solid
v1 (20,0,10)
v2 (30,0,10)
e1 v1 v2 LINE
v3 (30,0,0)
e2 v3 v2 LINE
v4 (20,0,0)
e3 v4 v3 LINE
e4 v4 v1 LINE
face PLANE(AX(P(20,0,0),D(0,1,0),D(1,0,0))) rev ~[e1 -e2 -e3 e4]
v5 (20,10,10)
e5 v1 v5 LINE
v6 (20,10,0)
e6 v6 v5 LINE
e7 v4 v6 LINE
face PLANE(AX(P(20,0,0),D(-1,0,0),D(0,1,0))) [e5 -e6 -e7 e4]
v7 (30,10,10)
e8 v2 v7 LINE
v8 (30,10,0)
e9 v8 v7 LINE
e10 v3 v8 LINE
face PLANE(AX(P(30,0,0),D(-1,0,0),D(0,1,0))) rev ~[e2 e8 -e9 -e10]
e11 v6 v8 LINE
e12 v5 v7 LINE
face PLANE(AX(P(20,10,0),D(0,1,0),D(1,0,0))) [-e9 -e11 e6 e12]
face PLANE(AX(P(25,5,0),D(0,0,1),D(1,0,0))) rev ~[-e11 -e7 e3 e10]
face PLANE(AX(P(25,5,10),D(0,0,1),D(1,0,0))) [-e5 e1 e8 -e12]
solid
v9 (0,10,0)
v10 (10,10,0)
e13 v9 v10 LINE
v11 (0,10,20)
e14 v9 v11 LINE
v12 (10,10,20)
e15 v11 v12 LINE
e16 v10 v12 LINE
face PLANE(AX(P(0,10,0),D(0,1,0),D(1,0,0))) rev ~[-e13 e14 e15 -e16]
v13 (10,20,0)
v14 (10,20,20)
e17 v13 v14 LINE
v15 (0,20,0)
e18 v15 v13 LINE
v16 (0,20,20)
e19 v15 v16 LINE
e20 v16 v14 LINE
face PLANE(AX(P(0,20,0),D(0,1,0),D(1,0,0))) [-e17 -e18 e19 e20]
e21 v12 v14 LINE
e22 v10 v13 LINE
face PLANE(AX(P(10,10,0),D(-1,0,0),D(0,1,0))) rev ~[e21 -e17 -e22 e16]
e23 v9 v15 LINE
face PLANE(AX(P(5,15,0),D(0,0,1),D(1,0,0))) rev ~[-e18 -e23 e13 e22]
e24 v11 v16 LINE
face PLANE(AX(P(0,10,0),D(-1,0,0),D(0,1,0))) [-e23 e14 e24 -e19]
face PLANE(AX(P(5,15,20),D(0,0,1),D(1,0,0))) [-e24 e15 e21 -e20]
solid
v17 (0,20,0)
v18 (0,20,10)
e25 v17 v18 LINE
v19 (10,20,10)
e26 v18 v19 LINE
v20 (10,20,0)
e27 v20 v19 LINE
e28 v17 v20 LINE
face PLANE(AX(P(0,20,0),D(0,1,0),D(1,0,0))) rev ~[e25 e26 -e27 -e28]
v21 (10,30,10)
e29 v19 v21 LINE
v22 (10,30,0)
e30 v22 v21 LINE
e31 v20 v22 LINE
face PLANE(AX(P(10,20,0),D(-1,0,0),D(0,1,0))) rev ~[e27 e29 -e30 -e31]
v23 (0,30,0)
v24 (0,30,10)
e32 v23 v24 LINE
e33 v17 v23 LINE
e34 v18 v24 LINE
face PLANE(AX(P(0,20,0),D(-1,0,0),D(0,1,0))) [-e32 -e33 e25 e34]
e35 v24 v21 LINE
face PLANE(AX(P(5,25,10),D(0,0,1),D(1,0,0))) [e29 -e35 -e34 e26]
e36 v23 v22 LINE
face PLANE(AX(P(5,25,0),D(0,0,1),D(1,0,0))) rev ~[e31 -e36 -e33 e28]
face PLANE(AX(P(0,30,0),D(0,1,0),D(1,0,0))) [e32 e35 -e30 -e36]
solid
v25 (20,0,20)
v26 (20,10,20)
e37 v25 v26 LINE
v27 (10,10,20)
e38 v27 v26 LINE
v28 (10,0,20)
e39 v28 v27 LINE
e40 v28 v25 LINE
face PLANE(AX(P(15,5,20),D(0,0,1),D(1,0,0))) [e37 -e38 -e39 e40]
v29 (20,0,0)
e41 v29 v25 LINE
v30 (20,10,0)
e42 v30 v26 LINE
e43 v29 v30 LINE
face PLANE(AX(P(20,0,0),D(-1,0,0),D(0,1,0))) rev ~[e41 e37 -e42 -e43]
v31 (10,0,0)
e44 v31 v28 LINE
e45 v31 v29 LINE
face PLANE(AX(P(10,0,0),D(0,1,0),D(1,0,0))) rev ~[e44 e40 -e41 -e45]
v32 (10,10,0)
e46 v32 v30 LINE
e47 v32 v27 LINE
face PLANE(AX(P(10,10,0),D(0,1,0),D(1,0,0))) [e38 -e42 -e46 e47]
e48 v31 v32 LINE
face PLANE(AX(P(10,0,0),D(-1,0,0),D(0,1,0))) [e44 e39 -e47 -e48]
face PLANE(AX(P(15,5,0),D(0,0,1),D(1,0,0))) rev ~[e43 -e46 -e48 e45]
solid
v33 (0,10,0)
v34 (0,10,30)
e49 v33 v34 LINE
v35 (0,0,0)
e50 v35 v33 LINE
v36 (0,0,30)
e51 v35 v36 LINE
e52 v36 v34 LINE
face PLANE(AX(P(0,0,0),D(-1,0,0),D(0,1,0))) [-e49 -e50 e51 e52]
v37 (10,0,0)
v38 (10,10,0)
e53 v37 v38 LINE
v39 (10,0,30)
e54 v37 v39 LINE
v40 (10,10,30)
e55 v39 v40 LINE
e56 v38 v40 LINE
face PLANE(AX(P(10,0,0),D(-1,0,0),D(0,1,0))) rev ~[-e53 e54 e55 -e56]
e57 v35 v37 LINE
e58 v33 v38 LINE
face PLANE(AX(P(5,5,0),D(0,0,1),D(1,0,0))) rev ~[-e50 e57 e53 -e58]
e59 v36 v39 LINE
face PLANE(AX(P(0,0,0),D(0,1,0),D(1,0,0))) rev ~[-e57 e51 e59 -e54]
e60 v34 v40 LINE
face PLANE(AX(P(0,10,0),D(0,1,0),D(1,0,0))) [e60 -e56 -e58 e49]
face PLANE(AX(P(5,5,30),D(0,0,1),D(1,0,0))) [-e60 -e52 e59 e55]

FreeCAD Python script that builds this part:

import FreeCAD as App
import Part
import Sketcher
Q = App.Units.Quantity

doc = App.newDocument("Part")
body = doc.addObject("PartDesign::Body", "Body")

sketch1 = body.newObject("Sketcher::SketchObject", "Sketch")
sketch1.AttachmentSupport = (doc.getObject("XY_Plane"), [""])
sketch1.MapMode = "FlatFace"
sketch1.addGeometry([
    Part.LineSegment(App.Vector(0, 10, 0), App.Vector(0, 0, 0)),
    Part.LineSegment(App.Vector(0, 0, 0), App.Vector(10, 0, 0)),
    Part.LineSegment(App.Vector(10, 0, 0), App.Vector(10, 10, 0)),
    Part.LineSegment(App.Vector(10, 10, 0), App.Vector(0, 10, 0)),
], False)
sketch1.addConstraint([
    Sketcher.Constraint("Coincident", 0, 2, 1, 1),
    Sketcher.Constraint("Coincident", 1, 2, 2, 1),
    Sketcher.Constraint("Coincident", 2, 2, 3, 1),
    Sketcher.Constraint("Coincident", 3, 2, 0, 1),
    Sketcher.Constraint("Vertical", 0),
    Sketcher.Constraint("Horizontal", 1),
    Sketcher.Constraint("Vertical", 2),
    Sketcher.Constraint("Horizontal", 3),
    Sketcher.Constraint("Coincident", 0, 2, -1, 1),
    Sketcher.Constraint("Equal", 3, 0),
    Sketcher.Constraint("DistanceX", 1, 1, 1, 2, Q("10 mm")),
])
pad1 = body.newObject("PartDesign::Pad", "Pad")
pad1.Profile = sketch1
pad1.Length = 30
body2 = doc.addObject("PartDesign::Body", "Body001")

sketch2 = body2.newObject("Sketcher::SketchObject", "Sketch001")
sketch2.AttachmentSupport = (doc.getObject("XY_Plane001"), [""])
sketch2.MapMode = "FlatFace"
sketch2.addGeometry([
    Part.LineSegment(App.Vector(10, 10, 0), App.Vector(10, 0, 0)),
    Part.LineSegment(App.Vector(10, 0, 0), App.Vector(20, 0, 0)),
    Part.LineSegment(App.Vector(20, 0, 0), App.Vector(20, 10, 0)),
    Part.LineSegment(App.Vector(20, 10, 0), App.Vector(10, 10, 0)),
], False)
sketch2.addConstraint([
    Sketcher.Constraint("Coincident", 0, 2, 1, 1),
    Sketcher.Constraint("Coincident", 1, 2, 2, 1),
    Sketcher.Constraint("Coincident", 2, 2, 3, 1),
    Sketcher.Constraint("Coincident", 3, 2, 0, 1),
    Sketcher.Constraint("Vertical", 0),
    Sketcher.Constraint("Horizontal", 1),
    Sketcher.Constraint("Vertical", 2),
    Sketcher.Constraint("Horizontal", 3),
    Sketcher.Constraint("PointOnObject", 0, 2, -1),
    Sketcher.Constraint("Equal", 3, 0),
    Sketcher.Constraint("DistanceX", 1, 1, 1, 2, Q("10 mm")),
    Sketcher.Constraint("DistanceX", -1, 1, 0, 2, Q("10 mm")),
])
pad2 = body2.newObject("PartDesign::Pad", "Pad001")
pad2.Profile = sketch2
pad2.Length = 20
body3 = doc.addObject("PartDesign::Body", "Body002")

sketch3 = body3.newObject("Sketcher::SketchObject", "Sketch002")
sketch3.AttachmentSupport = (doc.getObject("XY_Plane002"), [""])
sketch3.MapMode = "FlatFace"
sketch3.addGeometry([
    Part.LineSegment(App.Vector(0, 20, 0), App.Vector(0, 10, 0)),
    Part.LineSegment(App.Vector(0, 10, 0), App.Vector(10, 10, 0)),
    Part.LineSegment(App.Vector(10, 10, 0), App.Vector(10, 20, 0)),
    Part.LineSegment(App.Vector(10, 20, 0), App.Vector(0, 20, 0)),
], False)
sketch3.addConstraint([
    Sketcher.Constraint("Coincident", 0, 2, 1, 1),
    Sketcher.Constraint("Coincident", 1, 2, 2, 1),
    Sketcher.Constraint("Coincident", 2, 2, 3, 1),
    Sketcher.Constraint("Coincident", 3, 2, 0, 1),
    Sketcher.Constraint("Vertical", 0),
    Sketcher.Constraint("Horizontal", 1),
    Sketcher.Constraint("Vertical", 2),
    Sketcher.Constraint("Horizontal", 3),
    Sketcher.Constraint("PointOnObject", 0, 2, -2),
    Sketcher.Constraint("Equal", 3, 0),
    Sketcher.Constraint("DistanceX", 1, 1, 1, 2, Q("10 mm")),
    Sketcher.Constraint("DistanceY", -1, 1, 0, 2, Q("10 mm")),
])
pad3 = body3.newObject("PartDesign::Pad", "Pad002")
pad3.Profile = sketch3
pad3.Length = 20
body4 = doc.addObject("PartDesign::Body", "Body003")

sketch4 = body4.newObject("Sketcher::SketchObject", "Sketch003")
sketch4.AttachmentSupport = (doc.getObject("XY_Plane003"), [""])
sketch4.MapMode = "FlatFace"
sketch4.addGeometry([
    Part.LineSegment(App.Vector(20, 10, 0), App.Vector(20, 0, 0)),
    Part.LineSegment(App.Vector(20, 0, 0), App.Vector(30, 0, 0)),
    Part.LineSegment(App.Vector(30, 0, 0), App.Vector(30, 10, 0)),
    Part.LineSegment(App.Vector(30, 10, 0), App.Vector(20, 10, 0)),
], False)
sketch4.addConstraint([
    Sketcher.Constraint("Coincident", 0, 2, 1, 1),
    Sketcher.Constraint("Coincident", 1, 2, 2, 1),
    Sketcher.Constraint("Coincident", 2, 2, 3, 1),
    Sketcher.Constraint("Coincident", 3, 2, 0, 1),
    Sketcher.Constraint("Vertical", 0),
    Sketcher.Constraint("Horizontal", 1),
    Sketcher.Constraint("Vertical", 2),
    Sketcher.Constraint("Horizontal", 3),
    Sketcher.Constraint("PointOnObject", 0, 2, -1),
    Sketcher.Constraint("Equal", 3, 0),
    Sketcher.Constraint("DistanceX", 1, 1, 1, 2, Q("10 mm")),
    Sketcher.Constraint("DistanceX", -1, 1, 0, 2, Q("20 mm")),
])
pad4 = body4.newObject("PartDesign::Pad", "Pad003")
pad4.Profile = sketch4
pad4.Length = 10
body5 = doc.addObject("PartDesign::Body", "Body004")

sketch5 = body5.newObject("Sketcher::SketchObject", "Sketch004")
sketch5.AttachmentSupport = (doc.getObject("XY_Plane004"), [""])
sketch5.MapMode = "FlatFace"
sketch5.addGeometry([
    Part.LineSegment(App.Vector(0, 30, 0), App.Vector(0, 20, 0)),
    Part.LineSegment(App.Vector(0, 20, 0), App.Vector(10, 20, 0)),
    Part.LineSegment(App.Vector(10, 20, 0), App.Vector(10, 30, 0)),
    Part.LineSegment(App.Vector(10, 30, 0), App.Vector(0, 30, 0)),
], False)
sketch5.addConstraint([
    Sketcher.Constraint("Coincident", 0, 2, 1, 1),
    Sketcher.Constraint("Coincident", 1, 2, 2, 1),
    Sketcher.Constraint("Coincident", 2, 2, 3, 1),
    Sketcher.Constraint("Coincident", 3, 2, 0, 1),
    Sketcher.Constraint("Vertical", 0),
    Sketcher.Constraint("Horizontal", 1),
    Sketcher.Constraint("Vertical", 2),
    Sketcher.Constraint("Horizontal", 3),
    Sketcher.Constraint("PointOnObject", 0, 2, -2),
    Sketcher.Constraint("Equal", 3, 0),
    Sketcher.Constraint("DistanceX", 1, 1, 1, 2, Q("10 mm")),
    Sketcher.Constraint("DistanceY", -1, 1, 0, 2, Q("20 mm")),
])
pad5 = body5.newObject("PartDesign::Pad", "Pad004")
pad5.Profile = sketch5
pad5.Length = 10

doc.recompute()
